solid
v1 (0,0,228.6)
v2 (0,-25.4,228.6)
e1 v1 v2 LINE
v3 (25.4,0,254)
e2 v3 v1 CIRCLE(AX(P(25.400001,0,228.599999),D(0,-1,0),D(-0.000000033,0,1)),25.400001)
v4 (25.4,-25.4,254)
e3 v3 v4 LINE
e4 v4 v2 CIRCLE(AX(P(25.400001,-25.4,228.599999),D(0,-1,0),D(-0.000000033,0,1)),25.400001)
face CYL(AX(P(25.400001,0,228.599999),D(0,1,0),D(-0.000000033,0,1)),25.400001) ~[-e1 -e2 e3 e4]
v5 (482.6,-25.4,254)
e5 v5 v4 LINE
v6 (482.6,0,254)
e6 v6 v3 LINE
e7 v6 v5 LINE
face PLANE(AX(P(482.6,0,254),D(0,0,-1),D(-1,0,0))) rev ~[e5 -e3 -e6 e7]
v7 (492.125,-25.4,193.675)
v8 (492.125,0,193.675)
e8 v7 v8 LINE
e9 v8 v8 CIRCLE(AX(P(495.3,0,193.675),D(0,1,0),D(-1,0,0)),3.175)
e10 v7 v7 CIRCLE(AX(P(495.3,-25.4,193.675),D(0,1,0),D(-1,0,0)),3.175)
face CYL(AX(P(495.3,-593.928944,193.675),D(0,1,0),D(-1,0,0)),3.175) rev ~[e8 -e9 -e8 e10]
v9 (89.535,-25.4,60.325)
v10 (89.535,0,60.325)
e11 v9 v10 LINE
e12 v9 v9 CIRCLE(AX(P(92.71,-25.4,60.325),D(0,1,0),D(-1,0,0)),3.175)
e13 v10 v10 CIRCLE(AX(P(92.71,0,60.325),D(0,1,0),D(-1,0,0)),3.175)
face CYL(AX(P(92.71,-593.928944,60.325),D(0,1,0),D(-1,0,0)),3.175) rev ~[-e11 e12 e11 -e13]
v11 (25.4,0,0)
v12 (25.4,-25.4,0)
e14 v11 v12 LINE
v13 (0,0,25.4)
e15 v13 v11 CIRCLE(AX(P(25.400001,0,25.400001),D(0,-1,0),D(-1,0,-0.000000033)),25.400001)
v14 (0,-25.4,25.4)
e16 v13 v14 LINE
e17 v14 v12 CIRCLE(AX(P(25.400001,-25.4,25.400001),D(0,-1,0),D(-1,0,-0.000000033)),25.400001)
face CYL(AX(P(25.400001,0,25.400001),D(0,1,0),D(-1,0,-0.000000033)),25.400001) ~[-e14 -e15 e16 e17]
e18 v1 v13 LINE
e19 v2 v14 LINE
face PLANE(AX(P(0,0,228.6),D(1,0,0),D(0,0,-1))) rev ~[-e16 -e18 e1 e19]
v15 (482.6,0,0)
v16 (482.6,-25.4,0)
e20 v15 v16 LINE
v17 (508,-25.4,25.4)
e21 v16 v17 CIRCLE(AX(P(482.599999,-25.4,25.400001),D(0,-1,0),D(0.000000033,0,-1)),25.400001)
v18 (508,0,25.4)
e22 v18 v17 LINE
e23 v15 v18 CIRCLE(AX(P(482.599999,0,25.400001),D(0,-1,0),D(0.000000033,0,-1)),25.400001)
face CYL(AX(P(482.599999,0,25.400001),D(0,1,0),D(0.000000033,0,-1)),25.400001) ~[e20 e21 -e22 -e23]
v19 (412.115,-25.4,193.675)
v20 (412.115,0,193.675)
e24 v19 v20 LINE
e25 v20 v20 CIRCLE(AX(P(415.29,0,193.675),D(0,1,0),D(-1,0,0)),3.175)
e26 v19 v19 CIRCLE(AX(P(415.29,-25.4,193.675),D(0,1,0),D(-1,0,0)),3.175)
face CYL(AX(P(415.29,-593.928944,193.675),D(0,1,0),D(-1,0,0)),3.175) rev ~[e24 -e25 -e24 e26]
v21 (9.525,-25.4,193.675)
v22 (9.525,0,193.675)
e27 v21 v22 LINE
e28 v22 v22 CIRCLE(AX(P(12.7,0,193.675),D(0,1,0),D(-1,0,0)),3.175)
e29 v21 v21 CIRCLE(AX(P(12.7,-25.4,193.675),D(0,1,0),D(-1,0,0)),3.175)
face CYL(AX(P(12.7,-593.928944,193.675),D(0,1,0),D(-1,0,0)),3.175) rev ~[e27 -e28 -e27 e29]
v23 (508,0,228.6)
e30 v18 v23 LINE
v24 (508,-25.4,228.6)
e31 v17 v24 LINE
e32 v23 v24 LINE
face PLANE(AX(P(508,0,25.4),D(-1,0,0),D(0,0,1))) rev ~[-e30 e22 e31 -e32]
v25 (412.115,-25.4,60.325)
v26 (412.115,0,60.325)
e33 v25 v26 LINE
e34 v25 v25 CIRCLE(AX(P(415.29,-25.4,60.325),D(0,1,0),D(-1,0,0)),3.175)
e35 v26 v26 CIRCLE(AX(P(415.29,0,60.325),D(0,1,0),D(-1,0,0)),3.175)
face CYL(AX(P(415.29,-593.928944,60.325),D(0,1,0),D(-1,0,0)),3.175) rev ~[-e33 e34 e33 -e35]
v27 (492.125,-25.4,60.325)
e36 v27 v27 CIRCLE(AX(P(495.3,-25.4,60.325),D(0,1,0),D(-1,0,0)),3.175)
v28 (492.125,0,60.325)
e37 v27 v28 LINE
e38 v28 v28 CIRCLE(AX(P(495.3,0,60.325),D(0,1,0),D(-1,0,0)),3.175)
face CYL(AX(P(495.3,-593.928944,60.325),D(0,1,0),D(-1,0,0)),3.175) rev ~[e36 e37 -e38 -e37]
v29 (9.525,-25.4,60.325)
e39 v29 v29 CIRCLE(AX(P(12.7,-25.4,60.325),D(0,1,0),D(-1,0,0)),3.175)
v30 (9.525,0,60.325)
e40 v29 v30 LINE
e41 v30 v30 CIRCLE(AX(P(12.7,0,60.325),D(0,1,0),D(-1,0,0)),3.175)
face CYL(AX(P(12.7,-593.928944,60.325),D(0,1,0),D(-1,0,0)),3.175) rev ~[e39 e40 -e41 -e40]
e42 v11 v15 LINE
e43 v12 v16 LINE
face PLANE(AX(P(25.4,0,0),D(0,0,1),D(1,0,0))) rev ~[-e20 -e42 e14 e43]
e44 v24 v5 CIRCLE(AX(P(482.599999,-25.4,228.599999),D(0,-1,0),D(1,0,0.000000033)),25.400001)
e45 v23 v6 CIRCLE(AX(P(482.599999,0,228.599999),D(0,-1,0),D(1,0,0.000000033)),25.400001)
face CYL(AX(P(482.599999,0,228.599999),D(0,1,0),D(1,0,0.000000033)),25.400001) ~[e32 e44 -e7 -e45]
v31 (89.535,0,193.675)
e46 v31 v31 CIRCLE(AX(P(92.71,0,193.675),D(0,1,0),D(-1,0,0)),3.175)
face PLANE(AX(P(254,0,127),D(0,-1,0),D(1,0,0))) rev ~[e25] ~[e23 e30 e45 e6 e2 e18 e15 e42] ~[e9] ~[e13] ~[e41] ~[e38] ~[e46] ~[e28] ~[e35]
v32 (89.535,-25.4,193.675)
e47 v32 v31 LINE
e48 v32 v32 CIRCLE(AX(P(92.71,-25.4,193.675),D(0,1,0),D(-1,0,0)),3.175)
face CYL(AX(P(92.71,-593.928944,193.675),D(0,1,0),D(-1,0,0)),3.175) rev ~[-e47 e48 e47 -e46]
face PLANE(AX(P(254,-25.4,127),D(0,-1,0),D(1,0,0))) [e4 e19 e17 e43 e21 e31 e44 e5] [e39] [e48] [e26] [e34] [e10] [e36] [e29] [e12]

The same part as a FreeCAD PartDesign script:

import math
import FreeCAD as App
import Part
import Sketcher
from FreeCAD import Vector
Q = App.Units.Quantity

doc = App.newDocument("Part")
body = doc.addObject("PartDesign::Body", "Body")

# Sketch on XZ plane
sketch1 = doc.addObject("Sketcher::SketchObject", "Sketch")
body.addObject(sketch1)
sketch1.AttachmentSupport = (doc.XZ_Plane, [""])
sketch1.MapMode = "FlatFace"
sketch1.addGeometry(Part.LineSegment(Vector(0, 228.6, 0), Vector(0, 25.4, 0)), False)
sketch1.addGeometry(Part.ArcOfCircle(Part.Circle(Vector(25.400001, 25.400001, 0), Vector(0, 0, 1), 25.400001), math.radians(-179.999998), math.radians(-90.000002)), False)
sketch1.addGeometry(Part.LineSegment(Vector(25.4, 0, 0), Vector(482.6, 0, 0)), False)
sketch1.addGeometry(Part.ArcOfCircle(Part.Circle(Vector(482.599999, 25.400001, 0), Vector(0, 0, 1), 25.400001), math.radians(-89.999998), math.radians(-0.000002)), False)
sketch1.addGeometry(Part.LineSegment(Vector(508, 25.4, 0), Vector(508, 228.6, 0)), False)
sketch1.addGeometry(Part.ArcOfCircle(Part.Circle(Vector(482.599999, 228.599999, 0), Vector(0, 0, 1), 25.400001), math.radians(0.000002), math.radians(89.999998)), False)
sketch1.addGeometry(Part.LineSegment(Vector(482.6, 254, 0), Vector(25.4, 254, 0)), False)
sketch1.addGeometry(Part.ArcOfCircle(Part.Circle(Vector(25.400001, 228.599999, 0), Vector(0, 0, 1), 25.400001), math.radians(90.000002), math.radians(179.999998)), False)
sketch1.addConstraint(Sketcher.Constraint("Tangent", 0, 2, 1, 1))
sketch1.addConstraint(Sketcher.Constraint("Tangent", 1, 2, 2, 1))
sketch1.addConstraint(Sketcher.Constraint("Tangent", 2, 2, 3, 1))
sketch1.addConstraint(Sketcher.Constraint("Tangent", 3, 2, 4, 1))
sketch1.addConstraint(Sketcher.Constraint("Tangent", 4, 2, 5, 1))
sketch1.addConstraint(Sketcher.Constraint("Tangent", 5, 2, 6, 1))
sketch1.addConstraint(Sketcher.Constraint("Tangent", 6, 2, 7, 1))
sketch1.addConstraint(Sketcher.Constraint("Tangent", 7, 2, 0, 1))
sketch1.addConstraint(Sketcher.Constraint("Vertical", 0))
sketch1.addConstraint(Sketcher.Constraint("Horizontal", 2))
sketch1.addConstraint(Sketcher.Constraint("Vertical", 4))
sketch1.addConstraint(Sketcher.Constraint("Horizontal", 6))
sketch1.addConstraint(Sketcher.Constraint("Equal", 1, 3))
sketch1.addConstraint(Sketcher.Constraint("Equal", 3, 5))
sketch1.addConstraint(Sketcher.Constraint("Equal", 5, 7))
sketch1.addConstraint(Sketcher.Constraint("PointOnObject", 0, 2, -2))
sketch1.addConstraint(Sketcher.Constraint("PointOnObject", 1, 2, -1))
sketch1.addConstraint(Sketcher.Constraint("Radius", 1, Q("1 in")))
sketch1.addConstraint(Sketcher.Constraint("DistanceX", 2, 1, 2, 2, Q("18 in")))
sketch1.addConstraint(Sketcher.Constraint("DistanceY", 0, 2, 0, 1, Q("8 in")))
pad1 = doc.addObject("PartDesign::Pad", "Pad")
body.addObject(pad1)
pad1.Profile = sketch1
pad1.Length = Q("1 in")

# Sketch on XZ plane
sketch2 = doc.addObject("Sketcher::SketchObject", "Sketch001")
body.addObject(sketch2)
sketch2.AttachmentSupport = (doc.XZ_Plane, [""])
sketch2.MapMode = "FlatFace"
sketch2.AttachmentOffset = App.Placement(Vector(0, 0, 1 * 25.4), App.Rotation())
sketch2.addGeometry(Part.Circle(Vector(12.7, 193.675, 0), Vector(0, 0, 1), 3.175), False)
sketch2.addGeometry(Part.Circle(Vector(92.71, 193.675, 0), Vector(0, 0, 1), 3.175), False)
sketch2.addGeometry(Part.Circle(Vector(12.7, 60.325, 0), Vector(0, 0, 1), 3.175), False)
sketch2.addGeometry(Part.Circle(Vector(92.71, 60.325, 0), Vector(0, 0, 1), 3.175), False)
sketch2.addGeometry(Part.Circle(Vector(415.29, 193.675, 0), Vector(0, 0, 1), 3.175), False)
sketch2.addGeometry(Part.Circle(Vector(495.3, 193.675, 0), Vector(0, 0, 1), 3.175), False)
sketch2.addGeometry(Part.Circle(Vector(415.29, 60.325, 0), Vector(0, 0, 1), 3.175), False)
sketch2.addGeometry(Part.Circle(Vector(495.3, 60.325, 0), Vector(0, 0, 1), 3.175), False)
sketch2.addConstraint(Sketcher.Constraint("Equal", 0, 1))
sketch2.addConstraint(Sketcher.Constraint("Equal", 1, 2))
sketch2.addConstraint(Sketcher.Constraint("Equal", 2, 3))
sketch2.addConstraint(Sketcher.Constraint("Equal", 3, 4))
sketch2.addConstraint(Sketcher.Constraint("Equal", 4, 5))
sketch2.addConstraint(Sketcher.Constraint("Equal", 5, 6))
sketch2.addConstraint(Sketcher.Constraint("Equal", 6, 7))
sketch2.addConstraint(Sketcher.Constraint("Horizontal", 0, 3, 1, 3))
sketch2.addConstraint(Sketcher.Constraint("Horizontal", 2, 3, 3, 3))
sketch2.addConstraint(Sketcher.Constraint("Horizontal", 1, 3, 4, 3))
sketch2.addConstraint(Sketcher.Constraint("Horizontal", 4, 3, 5, 3))
sketch2.addConstraint(Sketcher.Constraint("Horizontal", 3, 3, 6, 3))
sketch2.addConstraint(Sketcher.Constraint("Horizontal", 6, 3, 7, 3))
sketch2.addConstraint(Sketcher.Constraint("Vertical", 0, 3, 2, 3))
sketch2.addConstraint(Sketcher.Constraint("Vertical", 1, 3, 3, 3))
sketch2.addConstraint(Sketcher.Constraint("Vertical", 4, 3, 6, 3))
sketch2.addConstraint(Sketcher.Constraint("Vertical", 5, 3, 7, 3))
sketch2.addConstraint(Sketcher.Constraint("Diameter", 0, Q("0.25 in")))
sketch2.addConstraint(Sketcher.Constraint("DistanceX", 0, 3, 5, 3, Q("19 in")))
sketch2.addConstraint(Sketcher.Constraint("DistanceX", -1, 1, 0, 3, Q("0.5 in")))
sketch2.addConstraint(Sketcher.Constraint("DistanceX", 1, 3, 4, 3, Q("12.7 in")))
sketch2.addConstraint(Sketcher.Constraint("DistanceX", -1, 1, 1, 3, Q("3.65 in")))
sketch2.addConstraint(Sketcher.Constraint("DistanceY", 2, 3, 0, 3, Q("5.25 in")))
sketch2.addConstraint(Sketcher.Constraint("DistanceY", -1, 1, 0, 3, Q("7.625 in")))
doc.recompute()
hole = doc.addObject("PartDesign::Hole", "Hole")
body.addObject(hole)
hole.Profile = sketch2
hole.ThreadType = "None"
hole.Diameter = Q("0.25 in")
hole.DepthType = "ThroughAll"

doc.recompute()
